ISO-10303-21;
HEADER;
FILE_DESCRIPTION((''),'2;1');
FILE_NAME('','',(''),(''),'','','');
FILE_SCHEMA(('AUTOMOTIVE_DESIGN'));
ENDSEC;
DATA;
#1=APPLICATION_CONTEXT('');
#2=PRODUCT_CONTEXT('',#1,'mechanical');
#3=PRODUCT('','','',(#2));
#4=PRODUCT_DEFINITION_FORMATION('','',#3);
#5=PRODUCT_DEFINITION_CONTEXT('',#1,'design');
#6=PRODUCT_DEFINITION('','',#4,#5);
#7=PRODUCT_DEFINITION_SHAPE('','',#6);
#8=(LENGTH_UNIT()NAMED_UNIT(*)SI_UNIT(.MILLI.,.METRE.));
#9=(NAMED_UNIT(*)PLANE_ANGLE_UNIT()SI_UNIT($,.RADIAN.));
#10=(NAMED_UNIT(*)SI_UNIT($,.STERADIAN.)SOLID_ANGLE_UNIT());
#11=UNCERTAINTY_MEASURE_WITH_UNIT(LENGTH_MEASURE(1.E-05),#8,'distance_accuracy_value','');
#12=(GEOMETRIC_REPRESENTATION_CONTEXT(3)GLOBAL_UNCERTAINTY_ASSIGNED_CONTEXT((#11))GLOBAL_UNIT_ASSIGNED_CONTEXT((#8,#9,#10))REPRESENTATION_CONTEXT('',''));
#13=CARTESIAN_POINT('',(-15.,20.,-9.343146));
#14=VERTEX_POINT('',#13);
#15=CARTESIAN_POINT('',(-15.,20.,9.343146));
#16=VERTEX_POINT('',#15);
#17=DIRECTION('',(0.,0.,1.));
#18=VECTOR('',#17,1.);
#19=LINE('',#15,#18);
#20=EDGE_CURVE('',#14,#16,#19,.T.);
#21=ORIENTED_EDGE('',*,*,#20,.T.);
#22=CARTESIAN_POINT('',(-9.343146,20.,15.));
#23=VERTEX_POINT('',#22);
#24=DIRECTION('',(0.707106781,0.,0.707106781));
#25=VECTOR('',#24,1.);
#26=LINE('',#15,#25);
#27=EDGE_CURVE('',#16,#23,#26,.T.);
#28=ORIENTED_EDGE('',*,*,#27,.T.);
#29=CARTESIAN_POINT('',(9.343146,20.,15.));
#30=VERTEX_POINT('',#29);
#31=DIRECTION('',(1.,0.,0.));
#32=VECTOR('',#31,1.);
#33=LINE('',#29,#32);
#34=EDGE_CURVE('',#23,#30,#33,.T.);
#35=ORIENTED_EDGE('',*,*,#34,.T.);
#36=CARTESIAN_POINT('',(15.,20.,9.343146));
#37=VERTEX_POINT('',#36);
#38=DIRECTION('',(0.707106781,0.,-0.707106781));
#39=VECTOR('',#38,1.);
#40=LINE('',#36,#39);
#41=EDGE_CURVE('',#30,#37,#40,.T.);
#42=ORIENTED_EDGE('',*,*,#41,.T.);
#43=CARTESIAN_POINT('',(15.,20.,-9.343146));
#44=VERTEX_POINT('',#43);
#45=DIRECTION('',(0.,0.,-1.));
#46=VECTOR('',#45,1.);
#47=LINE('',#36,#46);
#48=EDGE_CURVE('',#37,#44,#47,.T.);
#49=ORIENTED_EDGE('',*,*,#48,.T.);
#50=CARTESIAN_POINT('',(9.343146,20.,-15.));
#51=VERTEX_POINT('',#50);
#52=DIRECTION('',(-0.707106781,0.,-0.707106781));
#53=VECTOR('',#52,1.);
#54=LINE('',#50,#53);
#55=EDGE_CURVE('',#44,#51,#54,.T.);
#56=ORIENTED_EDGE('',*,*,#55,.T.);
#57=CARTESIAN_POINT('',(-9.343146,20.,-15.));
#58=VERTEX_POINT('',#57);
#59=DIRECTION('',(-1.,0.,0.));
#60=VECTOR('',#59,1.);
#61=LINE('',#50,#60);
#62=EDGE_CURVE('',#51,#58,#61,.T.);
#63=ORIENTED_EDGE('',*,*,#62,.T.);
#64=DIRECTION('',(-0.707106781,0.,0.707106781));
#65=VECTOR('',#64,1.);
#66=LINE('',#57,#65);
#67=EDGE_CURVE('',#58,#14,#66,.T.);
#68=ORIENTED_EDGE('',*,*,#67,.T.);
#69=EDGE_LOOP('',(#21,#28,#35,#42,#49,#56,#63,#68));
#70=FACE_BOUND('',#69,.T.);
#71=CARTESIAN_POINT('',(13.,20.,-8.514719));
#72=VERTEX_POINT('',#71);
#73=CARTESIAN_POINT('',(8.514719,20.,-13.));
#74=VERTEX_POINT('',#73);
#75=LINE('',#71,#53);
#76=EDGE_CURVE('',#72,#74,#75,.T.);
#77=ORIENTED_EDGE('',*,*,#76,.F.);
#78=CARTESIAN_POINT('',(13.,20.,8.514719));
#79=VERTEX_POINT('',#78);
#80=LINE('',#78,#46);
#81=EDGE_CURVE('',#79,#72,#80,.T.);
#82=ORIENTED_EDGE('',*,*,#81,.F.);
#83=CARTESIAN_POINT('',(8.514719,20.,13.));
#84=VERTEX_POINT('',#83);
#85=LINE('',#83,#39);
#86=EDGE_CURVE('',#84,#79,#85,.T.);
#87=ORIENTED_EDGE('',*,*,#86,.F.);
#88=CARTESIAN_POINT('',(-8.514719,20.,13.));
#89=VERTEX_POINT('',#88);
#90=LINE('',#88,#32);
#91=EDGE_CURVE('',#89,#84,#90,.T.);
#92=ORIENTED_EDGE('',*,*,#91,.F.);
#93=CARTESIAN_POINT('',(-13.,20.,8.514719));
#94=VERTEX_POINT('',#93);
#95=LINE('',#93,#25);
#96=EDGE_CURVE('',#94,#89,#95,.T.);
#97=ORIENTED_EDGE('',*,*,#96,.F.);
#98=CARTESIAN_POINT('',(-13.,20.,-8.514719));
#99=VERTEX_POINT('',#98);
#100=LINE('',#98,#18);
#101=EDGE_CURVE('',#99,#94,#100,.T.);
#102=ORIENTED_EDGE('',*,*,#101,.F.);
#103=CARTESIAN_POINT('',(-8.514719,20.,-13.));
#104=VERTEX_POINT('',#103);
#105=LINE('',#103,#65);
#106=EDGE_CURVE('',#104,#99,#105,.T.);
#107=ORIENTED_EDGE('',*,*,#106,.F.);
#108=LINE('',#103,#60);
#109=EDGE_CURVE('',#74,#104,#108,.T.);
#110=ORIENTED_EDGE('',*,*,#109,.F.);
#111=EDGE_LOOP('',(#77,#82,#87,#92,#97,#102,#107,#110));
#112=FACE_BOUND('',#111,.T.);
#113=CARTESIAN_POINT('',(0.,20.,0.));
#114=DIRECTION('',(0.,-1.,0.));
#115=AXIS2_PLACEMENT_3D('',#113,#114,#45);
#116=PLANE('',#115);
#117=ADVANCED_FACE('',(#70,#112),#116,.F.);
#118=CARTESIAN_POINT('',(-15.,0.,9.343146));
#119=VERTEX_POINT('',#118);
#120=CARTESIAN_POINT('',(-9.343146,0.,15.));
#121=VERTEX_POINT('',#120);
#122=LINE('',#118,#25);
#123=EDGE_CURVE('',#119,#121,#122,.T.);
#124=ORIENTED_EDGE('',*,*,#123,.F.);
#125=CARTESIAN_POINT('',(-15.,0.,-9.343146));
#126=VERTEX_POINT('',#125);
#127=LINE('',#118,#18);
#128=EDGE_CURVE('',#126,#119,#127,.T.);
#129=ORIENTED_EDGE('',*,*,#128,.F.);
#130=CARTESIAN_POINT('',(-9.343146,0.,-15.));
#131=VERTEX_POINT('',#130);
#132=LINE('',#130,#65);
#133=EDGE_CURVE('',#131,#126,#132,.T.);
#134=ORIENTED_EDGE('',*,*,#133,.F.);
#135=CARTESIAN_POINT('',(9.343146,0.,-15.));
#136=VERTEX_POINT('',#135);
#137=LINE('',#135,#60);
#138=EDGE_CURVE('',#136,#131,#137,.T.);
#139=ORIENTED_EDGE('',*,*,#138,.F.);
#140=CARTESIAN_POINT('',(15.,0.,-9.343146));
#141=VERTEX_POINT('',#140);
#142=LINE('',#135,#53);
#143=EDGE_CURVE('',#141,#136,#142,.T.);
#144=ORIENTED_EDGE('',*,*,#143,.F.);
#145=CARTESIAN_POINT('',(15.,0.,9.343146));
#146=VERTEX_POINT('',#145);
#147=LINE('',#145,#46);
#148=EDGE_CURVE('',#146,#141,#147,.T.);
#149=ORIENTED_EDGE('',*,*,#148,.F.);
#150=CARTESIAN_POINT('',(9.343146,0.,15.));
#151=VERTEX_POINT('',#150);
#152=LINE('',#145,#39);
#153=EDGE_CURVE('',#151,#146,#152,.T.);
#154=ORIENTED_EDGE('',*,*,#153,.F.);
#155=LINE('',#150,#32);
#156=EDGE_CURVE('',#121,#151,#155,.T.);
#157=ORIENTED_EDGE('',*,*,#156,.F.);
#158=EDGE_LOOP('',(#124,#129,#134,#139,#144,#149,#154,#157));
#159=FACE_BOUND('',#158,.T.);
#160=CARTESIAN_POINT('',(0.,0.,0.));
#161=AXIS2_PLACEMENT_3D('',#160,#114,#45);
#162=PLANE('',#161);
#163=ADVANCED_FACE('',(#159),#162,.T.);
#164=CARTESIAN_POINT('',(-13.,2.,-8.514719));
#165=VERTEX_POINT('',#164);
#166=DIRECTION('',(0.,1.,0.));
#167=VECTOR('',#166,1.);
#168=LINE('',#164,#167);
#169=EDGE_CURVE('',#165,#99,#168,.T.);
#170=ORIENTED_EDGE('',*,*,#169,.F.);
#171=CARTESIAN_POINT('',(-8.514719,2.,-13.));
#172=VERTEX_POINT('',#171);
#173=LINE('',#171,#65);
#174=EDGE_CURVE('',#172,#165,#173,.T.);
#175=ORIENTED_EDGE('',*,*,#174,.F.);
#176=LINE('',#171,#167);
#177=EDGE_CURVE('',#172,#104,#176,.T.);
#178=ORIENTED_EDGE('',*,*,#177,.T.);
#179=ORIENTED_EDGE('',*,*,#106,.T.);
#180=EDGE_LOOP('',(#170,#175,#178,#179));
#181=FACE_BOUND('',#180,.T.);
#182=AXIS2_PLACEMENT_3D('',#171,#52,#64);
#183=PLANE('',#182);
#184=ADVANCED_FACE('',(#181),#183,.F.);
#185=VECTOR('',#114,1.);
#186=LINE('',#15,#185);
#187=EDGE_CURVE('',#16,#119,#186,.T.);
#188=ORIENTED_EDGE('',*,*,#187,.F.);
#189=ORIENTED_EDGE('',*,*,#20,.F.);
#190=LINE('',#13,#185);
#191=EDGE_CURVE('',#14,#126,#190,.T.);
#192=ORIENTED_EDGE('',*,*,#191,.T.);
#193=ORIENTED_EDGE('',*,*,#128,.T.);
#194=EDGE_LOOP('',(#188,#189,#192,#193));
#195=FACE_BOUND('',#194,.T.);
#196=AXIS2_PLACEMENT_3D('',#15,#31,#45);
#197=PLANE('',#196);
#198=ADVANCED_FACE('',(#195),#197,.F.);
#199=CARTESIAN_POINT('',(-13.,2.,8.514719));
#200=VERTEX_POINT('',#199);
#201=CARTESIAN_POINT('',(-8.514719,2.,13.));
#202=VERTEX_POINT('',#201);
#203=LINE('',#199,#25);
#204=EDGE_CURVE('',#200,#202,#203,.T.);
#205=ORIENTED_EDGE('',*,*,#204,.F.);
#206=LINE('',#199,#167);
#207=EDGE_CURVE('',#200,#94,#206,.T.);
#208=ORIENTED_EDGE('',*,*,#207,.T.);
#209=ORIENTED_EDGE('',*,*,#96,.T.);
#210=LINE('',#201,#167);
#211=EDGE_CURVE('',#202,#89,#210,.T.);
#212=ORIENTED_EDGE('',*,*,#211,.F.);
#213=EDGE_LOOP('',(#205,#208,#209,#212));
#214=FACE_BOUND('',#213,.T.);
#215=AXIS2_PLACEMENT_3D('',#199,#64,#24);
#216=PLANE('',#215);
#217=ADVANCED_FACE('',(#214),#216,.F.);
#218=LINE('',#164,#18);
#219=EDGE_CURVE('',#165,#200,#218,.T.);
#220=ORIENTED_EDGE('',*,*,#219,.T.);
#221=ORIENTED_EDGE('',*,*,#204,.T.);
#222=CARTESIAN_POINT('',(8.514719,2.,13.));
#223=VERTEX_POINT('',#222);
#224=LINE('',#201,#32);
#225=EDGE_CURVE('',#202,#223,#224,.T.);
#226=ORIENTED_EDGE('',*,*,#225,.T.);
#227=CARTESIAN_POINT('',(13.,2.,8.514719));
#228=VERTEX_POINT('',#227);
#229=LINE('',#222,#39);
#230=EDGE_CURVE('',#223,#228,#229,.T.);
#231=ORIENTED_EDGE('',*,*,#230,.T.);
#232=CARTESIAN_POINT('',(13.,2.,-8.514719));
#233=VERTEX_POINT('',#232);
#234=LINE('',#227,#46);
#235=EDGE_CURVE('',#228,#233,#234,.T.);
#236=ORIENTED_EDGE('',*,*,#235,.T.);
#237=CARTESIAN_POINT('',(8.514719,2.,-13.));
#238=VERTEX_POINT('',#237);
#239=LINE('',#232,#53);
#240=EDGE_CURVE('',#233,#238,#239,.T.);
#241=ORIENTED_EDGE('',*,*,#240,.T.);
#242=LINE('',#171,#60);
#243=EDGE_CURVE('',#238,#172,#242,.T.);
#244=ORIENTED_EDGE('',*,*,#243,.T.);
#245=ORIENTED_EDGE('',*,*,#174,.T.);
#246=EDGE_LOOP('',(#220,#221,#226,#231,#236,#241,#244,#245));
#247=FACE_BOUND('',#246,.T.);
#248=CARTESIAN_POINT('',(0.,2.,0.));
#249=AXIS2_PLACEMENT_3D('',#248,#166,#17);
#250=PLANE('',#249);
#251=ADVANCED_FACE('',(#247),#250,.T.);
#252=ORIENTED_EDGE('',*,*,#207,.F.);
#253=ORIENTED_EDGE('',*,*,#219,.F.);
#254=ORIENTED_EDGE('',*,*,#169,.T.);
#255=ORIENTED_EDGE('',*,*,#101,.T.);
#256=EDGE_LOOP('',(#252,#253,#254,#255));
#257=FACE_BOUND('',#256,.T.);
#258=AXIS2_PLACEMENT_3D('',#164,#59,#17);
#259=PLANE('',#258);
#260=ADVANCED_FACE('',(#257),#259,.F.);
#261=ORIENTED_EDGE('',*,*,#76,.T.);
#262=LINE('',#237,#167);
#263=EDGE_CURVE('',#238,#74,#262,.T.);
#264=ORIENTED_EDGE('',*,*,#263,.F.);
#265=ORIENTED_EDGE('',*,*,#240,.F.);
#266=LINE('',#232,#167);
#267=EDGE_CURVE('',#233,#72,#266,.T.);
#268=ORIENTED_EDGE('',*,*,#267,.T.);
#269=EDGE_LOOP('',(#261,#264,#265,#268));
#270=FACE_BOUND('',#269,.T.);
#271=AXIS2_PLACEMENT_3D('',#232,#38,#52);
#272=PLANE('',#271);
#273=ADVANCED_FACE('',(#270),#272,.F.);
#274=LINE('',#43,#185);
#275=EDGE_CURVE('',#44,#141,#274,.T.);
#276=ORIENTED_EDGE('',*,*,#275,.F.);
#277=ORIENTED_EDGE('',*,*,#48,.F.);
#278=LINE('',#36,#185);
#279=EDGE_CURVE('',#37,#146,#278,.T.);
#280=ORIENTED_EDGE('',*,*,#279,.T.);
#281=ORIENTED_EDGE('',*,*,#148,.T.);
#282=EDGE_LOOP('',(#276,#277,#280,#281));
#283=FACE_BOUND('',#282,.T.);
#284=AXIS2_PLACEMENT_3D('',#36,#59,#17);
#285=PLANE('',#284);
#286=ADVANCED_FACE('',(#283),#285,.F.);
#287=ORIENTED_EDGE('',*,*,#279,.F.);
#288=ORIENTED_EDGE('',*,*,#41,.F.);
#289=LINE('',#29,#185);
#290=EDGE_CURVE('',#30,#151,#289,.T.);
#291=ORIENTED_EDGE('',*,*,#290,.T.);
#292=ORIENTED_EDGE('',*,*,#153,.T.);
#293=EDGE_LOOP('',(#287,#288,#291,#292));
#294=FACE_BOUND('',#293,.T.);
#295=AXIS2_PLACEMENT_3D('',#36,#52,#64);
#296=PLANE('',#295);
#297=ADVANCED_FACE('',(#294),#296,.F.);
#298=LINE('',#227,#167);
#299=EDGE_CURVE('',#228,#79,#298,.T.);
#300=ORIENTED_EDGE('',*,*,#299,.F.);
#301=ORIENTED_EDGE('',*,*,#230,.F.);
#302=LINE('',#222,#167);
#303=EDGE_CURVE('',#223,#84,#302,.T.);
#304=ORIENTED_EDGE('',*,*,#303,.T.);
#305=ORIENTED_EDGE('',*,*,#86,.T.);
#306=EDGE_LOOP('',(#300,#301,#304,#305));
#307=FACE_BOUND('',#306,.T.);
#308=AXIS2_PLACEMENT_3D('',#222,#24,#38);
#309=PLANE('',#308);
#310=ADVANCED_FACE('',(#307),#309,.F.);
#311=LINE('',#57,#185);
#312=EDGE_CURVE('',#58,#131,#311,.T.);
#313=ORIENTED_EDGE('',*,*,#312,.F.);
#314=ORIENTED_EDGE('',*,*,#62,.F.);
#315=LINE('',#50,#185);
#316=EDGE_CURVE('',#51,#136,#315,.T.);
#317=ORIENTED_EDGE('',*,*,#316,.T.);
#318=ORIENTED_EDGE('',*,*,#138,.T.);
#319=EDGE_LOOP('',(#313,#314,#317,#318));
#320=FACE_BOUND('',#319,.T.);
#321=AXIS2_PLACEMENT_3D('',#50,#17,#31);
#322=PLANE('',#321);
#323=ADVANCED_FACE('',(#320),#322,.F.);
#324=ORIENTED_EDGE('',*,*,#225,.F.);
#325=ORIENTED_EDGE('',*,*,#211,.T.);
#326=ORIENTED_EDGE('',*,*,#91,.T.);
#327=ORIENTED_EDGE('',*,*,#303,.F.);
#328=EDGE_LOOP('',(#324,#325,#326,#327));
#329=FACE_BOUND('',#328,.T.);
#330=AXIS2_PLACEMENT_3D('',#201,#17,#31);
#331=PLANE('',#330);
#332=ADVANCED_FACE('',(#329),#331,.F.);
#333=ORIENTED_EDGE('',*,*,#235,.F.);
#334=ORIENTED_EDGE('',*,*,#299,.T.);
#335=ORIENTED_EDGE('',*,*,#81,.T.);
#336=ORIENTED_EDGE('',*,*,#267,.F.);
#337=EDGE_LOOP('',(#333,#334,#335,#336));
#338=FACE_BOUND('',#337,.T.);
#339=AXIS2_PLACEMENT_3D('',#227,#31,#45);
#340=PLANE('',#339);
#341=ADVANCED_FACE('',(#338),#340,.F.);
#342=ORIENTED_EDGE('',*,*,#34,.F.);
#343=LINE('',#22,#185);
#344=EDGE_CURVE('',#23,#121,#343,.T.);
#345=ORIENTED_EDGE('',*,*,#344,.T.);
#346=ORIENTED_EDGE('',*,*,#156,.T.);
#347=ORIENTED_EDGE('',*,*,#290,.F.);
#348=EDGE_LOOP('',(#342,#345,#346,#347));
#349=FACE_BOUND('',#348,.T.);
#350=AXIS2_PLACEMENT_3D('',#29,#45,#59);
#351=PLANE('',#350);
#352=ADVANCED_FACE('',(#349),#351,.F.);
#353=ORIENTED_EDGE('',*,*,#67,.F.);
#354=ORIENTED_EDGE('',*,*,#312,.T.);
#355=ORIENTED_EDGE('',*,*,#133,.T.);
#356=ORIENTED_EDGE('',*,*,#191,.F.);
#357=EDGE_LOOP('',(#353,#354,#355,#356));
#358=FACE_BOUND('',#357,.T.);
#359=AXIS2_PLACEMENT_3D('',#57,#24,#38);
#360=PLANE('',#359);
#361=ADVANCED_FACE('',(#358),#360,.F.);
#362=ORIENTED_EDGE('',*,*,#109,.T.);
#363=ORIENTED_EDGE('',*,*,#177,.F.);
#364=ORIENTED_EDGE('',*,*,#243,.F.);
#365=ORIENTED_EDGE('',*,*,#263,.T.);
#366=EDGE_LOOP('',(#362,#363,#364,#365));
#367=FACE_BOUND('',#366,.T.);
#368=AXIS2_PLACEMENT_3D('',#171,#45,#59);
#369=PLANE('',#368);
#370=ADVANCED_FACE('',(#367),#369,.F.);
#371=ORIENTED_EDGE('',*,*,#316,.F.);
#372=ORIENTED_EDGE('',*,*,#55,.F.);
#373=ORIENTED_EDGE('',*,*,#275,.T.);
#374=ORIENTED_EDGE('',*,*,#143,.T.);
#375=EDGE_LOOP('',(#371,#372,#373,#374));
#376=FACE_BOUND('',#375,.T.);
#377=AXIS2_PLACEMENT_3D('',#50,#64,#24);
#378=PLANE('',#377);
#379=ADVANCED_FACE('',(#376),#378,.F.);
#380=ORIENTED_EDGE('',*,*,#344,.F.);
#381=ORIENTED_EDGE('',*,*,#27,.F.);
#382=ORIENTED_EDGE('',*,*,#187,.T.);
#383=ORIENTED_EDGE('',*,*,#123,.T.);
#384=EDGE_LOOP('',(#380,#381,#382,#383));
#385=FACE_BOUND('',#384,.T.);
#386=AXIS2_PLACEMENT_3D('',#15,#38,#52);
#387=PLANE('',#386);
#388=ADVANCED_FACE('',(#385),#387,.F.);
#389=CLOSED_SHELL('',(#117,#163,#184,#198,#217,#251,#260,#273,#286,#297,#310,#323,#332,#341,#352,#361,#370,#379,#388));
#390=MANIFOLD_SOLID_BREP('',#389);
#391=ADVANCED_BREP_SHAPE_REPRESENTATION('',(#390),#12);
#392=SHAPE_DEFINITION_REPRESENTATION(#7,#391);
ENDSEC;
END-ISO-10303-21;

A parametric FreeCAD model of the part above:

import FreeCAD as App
import Part
import Sketcher
from FreeCAD import Vector
Q = App.Units.Quantity


def add_polygon(sketch, points):
    """Adds a closed chain of lines whose ends are joined by coincident constraints."""
    first, n = sketch.GeometryCount, len(points)
    for a, b in zip(points, points[1:] + points[:1]):
        sketch.addGeometry(Part.LineSegment(App.Vector(*a, 0), App.Vector(*b, 0)), False)
    for i in range(n):
        sketch.addConstraint(Sketcher.Constraint("Coincident", first + i, 2, first + (i + 1) % n, 1))

doc = App.newDocument("Part")
body = doc.addObject("PartDesign::Body", "Body")

# Sketch on XZ plane
sketch1 = body.newObject("Sketcher::SketchObject", "Sketch")
sketch1.AttachmentSupport = (doc.getObject("XZ_Plane"), [""])
sketch1.MapMode = "FlatFace"
add_polygon(sketch1, [(-9, -15), (-15, -9), (-15, 9), (-9, 15), (9, 15), (15, 9), (15, -9), (9, -15)])  # lines 0-7
sketch1.addConstraint(Sketcher.Constraint("Vertical", 1))
sketch1.addConstraint(Sketcher.Constraint("Horizontal", 3))
sketch1.addConstraint(Sketcher.Constraint("Vertical", 5))
sketch1.addConstraint(Sketcher.Constraint("Horizontal", 7))
sketch1.addConstraint(Sketcher.Constraint("Symmetric", 0, 2, 4, 2, -1, 1))
sketch1.addConstraint(Sketcher.Constraint("Symmetric", 2, 2, 6, 2, -1, 1))
sketch1.addConstraint(Sketcher.Constraint("Perpendicular", 0, 2))
sketch1.addConstraint(Sketcher.Constraint("Perpendicular", 2, 4))
sketch1.addConstraint(Sketcher.Constraint("Perpendicular", 4, 6))
sketch1.addConstraint(Sketcher.Constraint("Horizontal", 1, 2, 4, 2))
sketch1.addConstraint(Sketcher.Constraint("Vertical", 3, 2, 6, 2))
sketch1.addConstraint(Sketcher.Constraint("Equal", 7, 1))
sketch1.addConstraint(Sketcher.Constraint("Distance", 0, Q("8 mm")))
sketch1.addConstraint(Sketcher.Constraint("DistanceX", 0, 2, -1, 1, Q("15 mm")))
pad1 = body.newObject("PartDesign::Pad", "Pad")
pad1.Profile = sketch1
pad1.Length = 20
pad1.Reversed = True

# Sketch on XZ plane
sketch2 = body.newObject("Sketcher::SketchObject", "Sketch001")
sketch2.AttachmentSupport = (doc.getObject("XZ_Plane"), [""])
sketch2.MapMode = "FlatFace"
sketch2.AttachmentOffset = App.Placement(Vector(0, 0, -20), App.Rotation())
add_polygon(sketch2, [(-9, -13), (-13, -9), (-13, 9), (-9, 13), (9, 13), (13, 9), (13, -9), (9, -13)])  # lines 0-7
sketch2.addConstraint(Sketcher.Constraint("Vertical", 1))
sketch2.addConstraint(Sketcher.Constraint("Horizontal", 3))
sketch2.addConstraint(Sketcher.Constraint("Vertical", 5))
sketch2.addConstraint(Sketcher.Constraint("Horizontal", 7))
sketch2.addConstraint(Sketcher.Constraint("Symmetric", 0, 2, 4, 2, -1, 1))
sketch2.addConstraint(Sketcher.Constraint("Symmetric", 2, 2, 6, 2, -1, 1))
sketch2.addConstraint(Sketcher.Constraint("Perpendicular", 0, 2))
sketch2.addConstraint(Sketcher.Constraint("Perpendicular", 2, 4))
sketch2.addConstraint(Sketcher.Constraint("Perpendicular", 4, 6))
sketch2.addConstraint(Sketcher.Constraint("Horizontal", 1, 2, 4, 2))
sketch2.addConstraint(Sketcher.Constraint("Vertical", 3, 2, 6, 2))
sketch2.addConstraint(Sketcher.Constraint("Equal", 7, 1))
sketch2.addConstraint(Sketcher.Constraint("DistanceX", 0, 2, -1, 1, Q("13 mm")))
sketch2.addConstraint(Sketcher.Constraint("DistanceX", 3, 1, 3, 2, Q("17.029437 mm")))
pocket1 = body.newObject("PartDesign::Pocket", "Pocket")
pocket1.Profile = sketch2
pocket1.Length = 18
pocket1.Reversed = True

doc.recompute()
